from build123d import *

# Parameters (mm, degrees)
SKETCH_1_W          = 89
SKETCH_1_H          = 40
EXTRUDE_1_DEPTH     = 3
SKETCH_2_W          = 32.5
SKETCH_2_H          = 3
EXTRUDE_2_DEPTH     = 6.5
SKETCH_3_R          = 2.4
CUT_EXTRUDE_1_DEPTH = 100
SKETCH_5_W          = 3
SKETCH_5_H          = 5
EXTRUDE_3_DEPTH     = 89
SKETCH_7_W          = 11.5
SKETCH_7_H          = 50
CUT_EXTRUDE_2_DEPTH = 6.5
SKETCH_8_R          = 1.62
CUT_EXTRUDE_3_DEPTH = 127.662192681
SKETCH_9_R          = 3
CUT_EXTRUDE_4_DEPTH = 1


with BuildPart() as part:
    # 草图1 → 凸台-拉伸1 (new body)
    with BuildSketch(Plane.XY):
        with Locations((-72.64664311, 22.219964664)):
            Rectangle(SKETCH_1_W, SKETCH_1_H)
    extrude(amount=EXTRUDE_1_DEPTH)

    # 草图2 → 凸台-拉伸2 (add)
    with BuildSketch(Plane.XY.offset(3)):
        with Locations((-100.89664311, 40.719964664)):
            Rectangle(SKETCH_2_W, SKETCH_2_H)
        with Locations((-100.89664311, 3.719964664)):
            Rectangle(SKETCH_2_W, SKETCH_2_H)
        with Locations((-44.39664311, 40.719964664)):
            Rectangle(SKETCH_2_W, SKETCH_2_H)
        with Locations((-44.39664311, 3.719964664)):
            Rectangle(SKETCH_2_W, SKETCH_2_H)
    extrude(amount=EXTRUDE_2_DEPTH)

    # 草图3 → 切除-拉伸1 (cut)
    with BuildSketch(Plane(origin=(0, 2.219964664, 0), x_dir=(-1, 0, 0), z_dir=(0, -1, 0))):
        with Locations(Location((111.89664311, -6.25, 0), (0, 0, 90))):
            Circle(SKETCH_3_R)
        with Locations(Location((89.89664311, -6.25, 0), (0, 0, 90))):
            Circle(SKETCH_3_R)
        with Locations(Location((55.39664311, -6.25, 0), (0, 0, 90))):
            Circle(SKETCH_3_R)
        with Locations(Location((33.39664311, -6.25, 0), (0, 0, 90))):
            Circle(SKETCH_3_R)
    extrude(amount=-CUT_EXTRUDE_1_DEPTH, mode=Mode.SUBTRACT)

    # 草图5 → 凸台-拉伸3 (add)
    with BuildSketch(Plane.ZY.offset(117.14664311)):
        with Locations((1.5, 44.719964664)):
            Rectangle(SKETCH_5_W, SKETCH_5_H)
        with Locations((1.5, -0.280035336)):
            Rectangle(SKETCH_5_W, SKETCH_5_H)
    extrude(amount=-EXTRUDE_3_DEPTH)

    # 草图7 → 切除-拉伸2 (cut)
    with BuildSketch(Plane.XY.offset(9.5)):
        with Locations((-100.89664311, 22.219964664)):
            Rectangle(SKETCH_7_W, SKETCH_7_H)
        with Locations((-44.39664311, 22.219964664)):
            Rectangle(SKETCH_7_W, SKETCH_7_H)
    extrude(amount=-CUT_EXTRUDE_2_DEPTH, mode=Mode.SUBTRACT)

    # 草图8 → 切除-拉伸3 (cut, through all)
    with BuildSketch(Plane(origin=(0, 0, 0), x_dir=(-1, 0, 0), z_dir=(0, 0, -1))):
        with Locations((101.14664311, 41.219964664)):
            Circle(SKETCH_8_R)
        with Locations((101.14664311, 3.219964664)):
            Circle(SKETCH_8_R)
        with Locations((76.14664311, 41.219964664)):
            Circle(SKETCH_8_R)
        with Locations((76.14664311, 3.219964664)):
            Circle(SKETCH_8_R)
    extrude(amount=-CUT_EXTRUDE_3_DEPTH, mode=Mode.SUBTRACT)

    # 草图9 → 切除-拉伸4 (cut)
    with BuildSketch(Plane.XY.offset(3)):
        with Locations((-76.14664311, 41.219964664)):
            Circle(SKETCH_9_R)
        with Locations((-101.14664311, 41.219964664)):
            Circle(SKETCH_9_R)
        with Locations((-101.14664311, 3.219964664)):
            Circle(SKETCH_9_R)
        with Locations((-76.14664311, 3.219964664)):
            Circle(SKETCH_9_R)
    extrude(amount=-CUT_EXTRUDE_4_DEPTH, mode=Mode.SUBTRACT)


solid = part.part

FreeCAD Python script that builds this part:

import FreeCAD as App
import Part
import Sketcher
from FreeCAD import Vector
Q = App.Units.Quantity


def add_polygon(sketch, points):
    """Adds a closed chain of lines whose ends are joined by coincident constraints."""
    first, n = sketch.GeometryCount, len(points)
    for a, b in zip(points, points[1:] + points[:1]):
        sketch.addGeometry(Part.LineSegment(App.Vector(*a, 0), App.Vector(*b, 0)), False)
    for i in range(n):
        sketch.addConstraint(Sketcher.Constraint("Coincident", first + i, 2, first + (i + 1) % n, 1))

doc = App.newDocument("Part")
params = doc.addObject("Spreadsheet::Sheet", "Params")
for row, (alias, value) in enumerate([
    ("sketch1_width", "89 mm"),
    ("sketch1_height", "40 mm"),
    ("pad1_length", "3 mm"),
    ("sketch2_height", "3 mm"),
    ("sketch2_width", "32.5 mm"),
    ("pad2_length", "6.5 mm"),
    ("sketch3_diameter", "4.8 mm"),
    ("pocket1_length", "100 mm"),
    ("sketch4_width", "5 mm"),
    ("sketch4_height", "3 mm"),
    ("pad3_length", "89 mm"),
    ("sketch5_height", "50 mm"),
    ("sketch5_width", "11.5 mm"),
    ("pocket2_length", "6.5 mm"),
    ("sketch6_diameter", "3.24 mm"),
    ("sketch7_diameter", "6 mm"),
    ("pocket4_length", "1 mm"),
], start=1):
    params.set(f"A{row}", alias)
    params.set(f"B{row}", "=" + value)
    params.setAlias(f"B{row}", alias)

body = doc.addObject("PartDesign::Body", "Body")

sketch1 = doc.addObject("Sketcher::SketchObject", "Sketch")
body.addObject(sketch1)
sketch1.AttachmentSupport = (doc.XY_Plane, [""])
sketch1.MapMode = "FlatFace"
add_polygon(sketch1, [(-117, 42), (-117, 2), (-28, 2), (-28, 42)])
sketch1.addConstraint(Sketcher.Constraint("Vertical", 0))
sketch1.addConstraint(Sketcher.Constraint("Horizontal", 1))
sketch1.addConstraint(Sketcher.Constraint("Vertical", 2))
sketch1.addConstraint(Sketcher.Constraint("Horizontal", 3))
sketch1.addConstraint(Sketcher.Constraint("DistanceX", 1, 1, 1, 2, Q("89 mm")))
sketch1.addConstraint(Sketcher.Constraint("DistanceY", 0, 2, 0, 1, Q("40 mm")))
sketch1.addConstraint(Sketcher.Constraint("DistanceX", 0, 2, -1, 1, Q("117.146643 mm")))
sketch1.addConstraint(Sketcher.Constraint("DistanceY", -1, 1, 0, 2, Q("2.219965 mm")))
sketch1.setExpression("Constraints[8]", "Params.sketch1_width")
sketch1.setExpression("Constraints[9]", "Params.sketch1_height")
pad1 = doc.addObject("PartDesign::Pad", "Pad")
body.addObject(pad1)
pad1.Profile = sketch1
pad1.setExpression("Length", "Params.pad1_length")

sketch2 = doc.addObject("Sketcher::SketchObject", "Sketch001")
body.addObject(sketch2)
sketch2.AttachmentSupport = (doc.XY_Plane, [""])
sketch2.MapMode = "FlatFace"
sketch2.AttachmentOffset = App.Placement(Vector(0, 0, 3), App.Rotation())
add_polygon(sketch2, [(-117.1, 42.2), (-117.1, 39.2), (-84.6, 39.2), (-84.6, 42.2)])
add_polygon(sketch2, [(-117.1, 5.2), (-117.1, 2.2), (-84.6, 2.2), (-84.6, 5.2)])
add_polygon(sketch2, [(-60.6, 42.2), (-60.6, 39.2), (-28.1, 39.2), (-28.1, 42.2)])
add_polygon(sketch2, [(-60.6, 5.2), (-60.6, 2.2), (-28.1, 2.2), (-28.1, 5.2)])
sketch2.addConstraint(Sketcher.Constraint("Vertical", 0))
sketch2.addConstraint(Sketcher.Constraint("Horizontal", 1))
sketch2.addConstraint(Sketcher.Constraint("Vertical", 2))
sketch2.addConstraint(Sketcher.Constraint("Horizontal", 3))
sketch2.addConstraint(Sketcher.Constraint("Vertical", 4))
sketch2.addConstraint(Sketcher.Constraint("Horizontal", 5))
sketch2.addConstraint(Sketcher.Constraint("Vertical", 6))
sketch2.addConstraint(Sketcher.Constraint("Horizontal", 7))
sketch2.addConstraint(Sketcher.Constraint("Vertical", 8))
sketch2.addConstraint(Sketcher.Constraint("Horizontal", 9))
sketch2.addConstraint(Sketcher.Constraint("Vertical", 10))
sketch2.addConstraint(Sketcher.Constraint("Horizontal", 11))
sketch2.addConstraint(Sketcher.Constraint("Vertical", 12))
sketch2.addConstraint(Sketcher.Constraint("Horizontal", 13))
sketch2.addConstraint(Sketcher.Constraint("Vertical", 14))
sketch2.addConstraint(Sketcher.Constraint("Horizontal", 15))
sketch2.addConstraint(Sketcher.Constraint("Horizontal", 1, 2, 8, 2))
sketch2.addConstraint(Sketcher.Constraint("Horizontal", 3, 2, 10, 2))
sketch2.addConstraint(Sketcher.Constraint("Horizontal", 5, 2, 12, 2))
sketch2.addConstraint(Sketcher.Constraint("Horizontal", 7, 2, 14, 2))
sketch2.addConstraint(Sketcher.Constraint("Vertical", 3, 2, 4, 2))
sketch2.addConstraint(Sketcher.Constraint("Vertical", 2, 2, 5, 2))
sketch2.addConstraint(Sketcher.Constraint("Vertical", 11, 2, 12, 2))
sketch2.addConstraint(Sketcher.Constraint("Vertical", 10, 2, 13, 2))
sketch2.addConstraint(Sketcher.Constraint("Equal", 7, 9))
sketch2.addConstraint(Sketcher.Constraint("Equal", 2, 4))
sketch2.addConstraint(Sketcher.Constraint("DistanceY", 0, 2, 0, 1, Q("3 mm")))
sketch2.addConstraint(Sketcher.Constraint("DistanceX", 1, 1, 1, 2, Q("32.5 mm")))
sketch2.addConstraint(Sketcher.Constraint("DistanceY", 4, 2, 0, 2, Q("37 mm")))
sketch2.addConstraint(Sketcher.Constraint("DistanceX", 1, 2, 8, 2, Q("24 mm")))
sketch2.addConstraint(Sketcher.Constraint("DistanceX", 0, 2, -1, 1, Q("117.146643 mm")))
sketch2.addConstraint(Sketcher.Constraint("DistanceY", -1, 1, 0, 2, Q("39.219965 mm")))
sketch2.setExpression("Constraints[42]", "Params.sketch2_height")
sketch2.setExpression("Constraints[43]", "Params.sketch2_width")
pad2 = doc.addObject("PartDesign::Pad", "Pad001")
body.addObject(pad2)
pad2.Profile = sketch2
pad2.setExpression("Length", "Params.pad2_length")

sketch3 = doc.addObject("Sketcher::SketchObject", "Sketch002")
body.addObject(sketch3)
sketch3.AttachmentSupport = (doc.XZ_Plane, [""])
sketch3.MapMode = "FlatFace"
sketch3.AttachmentOffset = App.Placement(Vector(0, 0, -2.219965), App.Rotation())
sketch3.addGeometry(Part.Circle(Vector(-111.9, 6.2, 0), Vector(0, 0, 1), 2.4), False)
sketch3.addGeometry(Part.Circle(Vector(-89.9, 6.2, 0), Vector(0, 0, 1), 2.4), False)
sketch3.addGeometry(Part.Circle(Vector(-55.4, 6.2, 0), Vector(0, 0, 1), 2.4), False)
sketch3.addGeometry(Part.Circle(Vector(-33.4, 6.2, 0), Vector(0, 0, 1), 2.4), False)
sketch3.addConstraint(Sketcher.Constraint("Equal", 0, 1))
sketch3.addConstraint(Sketcher.Constraint("Equal", 1, 2))
sketch3.addConstraint(Sketcher.Constraint("Equal", 2, 3))
sketch3.addConstraint(Sketcher.Constraint("Horizontal", 0, 3, 1, 3))
sketch3.addConstraint(Sketcher.Constraint("Horizontal", 1, 3, 2, 3))
sketch3.addConstraint(Sketcher.Constraint("Horizontal", 2, 3, 3, 3))
sketch3.addConstraint(Sketcher.Constraint("Diameter", 0, Q("4.8 mm")))
sketch3.addConstraint(Sketcher.Constraint("DistanceX", 0, 3, 1, 3, Q("22 mm")))
sketch3.addConstraint(Sketcher.Constraint("DistanceX", 2, 3, 3, 3, Q("22 mm")))
sketch3.addConstraint(Sketcher.Constraint("DistanceX", 1, 3, 2, 3, Q("34.5 mm")))
sketch3.addConstraint(Sketcher.Constraint("DistanceY", -1, 1, 0, 3, Q("6.25 mm")))
sketch3.addConstraint(Sketcher.Constraint("DistanceX", 0, 3, -1, 1, Q("111.896643 mm")))
sketch3.setExpression("Constraints[6]", "Params.sketch3_diameter")
pocket1 = doc.addObject("PartDesign::Pocket", "Pocket")
body.addObject(pocket1)
pocket1.Profile = sketch3
pocket1.setExpression("Length", "Params.pocket1_length")

sketch4 = doc.addObject("Sketcher::SketchObject", "Sketch003")
body.addObject(sketch4)
sketch4.AttachmentSupport = (doc.YZ_Plane, [""])
sketch4.MapMode = "FlatFace"
sketch4.AttachmentOffset = App.Placement(Vector(0, 0, -117.146643), App.Rotation())
add_polygon(sketch4, [(47.2, 0), (42.2, 0), (42.2, 3), (47.2, 3)])
add_polygon(sketch4, [(2.2, 0), (-2.8, 0), (-2.8, 3), (2.2, 3)])
sketch4.addConstraint(Sketcher.Constraint("Horizontal", 0))
sketch4.addConstraint(Sketcher.Constraint("Vertical", 1))
sketch4.addConstraint(Sketcher.Constraint("Horizontal", 2))
sketch4.addConstraint(Sketcher.Constraint("Vertical", 3))
sketch4.addConstraint(Sketcher.Constraint("Horizontal", 4))
sketch4.addConstraint(Sketcher.Constraint("Vertical", 5))
sketch4.addConstraint(Sketcher.Constraint("Horizontal", 6))
sketch4.addConstraint(Sketcher.Constraint("Vertical", 7))
sketch4.addConstraint(Sketcher.Constraint("PointOnObject", 0, 2, -1))
sketch4.addConstraint(Sketcher.Constraint("PointOnObject", 4, 2, -1))
sketch4.addConstraint(Sketcher.Constraint("Horizontal", 2, 2, 5, 2))
sketch4.addConstraint(Sketcher.Constraint("Equal", 2, 4))
sketch4.addConstraint(Sketcher.Constraint("DistanceX", 0, 2, 0, 1, Q("5 mm")))
sketch4.addConstraint(Sketcher.Constraint("DistanceY", 1, 1, 1, 2, Q("3 mm")))
sketch4.addConstraint(Sketcher.Constraint("DistanceX", 4, 2, 0, 2, Q("45 mm")))
sketch4.addConstraint(Sketcher.Constraint("DistanceX", -1, 1, 0, 2, Q("42.219965 mm")))
sketch4.setExpression("Constraints[20]", "Params.sketch4_width")
sketch4.setExpression("Constraints[21]", "Params.sketch4_height")
pad3 = doc.addObject("PartDesign::Pad", "Pad002")
body.addObject(pad3)
pad3.Profile = sketch4
pad3.setExpression("Length", "Params.pad3_length")

sketch5 = doc.addObject("Sketcher::SketchObject", "Sketch004")
body.addObject(sketch5)
sketch5.AttachmentSupport = (doc.XY_Plane, [""])
sketch5.MapMode = "FlatFace"
sketch5.AttachmentOffset = App.Placement(Vector(0, 0, 9.5), App.Rotation())
add_polygon(sketch5, [(-107, 47), (-107, -3), (-95, -3), (-95, 47)])
add_polygon(sketch5, [(-50, 47), (-50, -3), (-39, -3), (-39, 47)])
sketch5.addConstraint(Sketcher.Constraint("Vertical", 0))
sketch5.addConstraint(Sketcher.Constraint("Horizontal", 1))
sketch5.addConstraint(Sketcher.Constraint("Vertical", 2))
sketch5.addConstraint(Sketcher.Constraint("Horizontal", 3))
sketch5.addConstraint(Sketcher.Constraint("Vertical", 4))
sketch5.addConstraint(Sketcher.Constraint("Horizontal", 5))
sketch5.addConstraint(Sketcher.Constraint("Vertical", 6))
sketch5.addConstraint(Sketcher.Constraint("Horizontal", 7))
sketch5.addConstraint(Sketcher.Constraint("Horizontal", 1, 2, 4, 2))
sketch5.addConstraint(Sketcher.Constraint("Horizontal", 3, 2, 6, 2))
sketch5.addConstraint(Sketcher.Constraint("Equal", 3, 5))
sketch5.addConstraint(Sketcher.Constraint("DistanceY", 0, 2, 0, 1, Q("50 mm")))
sketch5.addConstraint(Sketcher.Constraint("DistanceX", 1, 1, 1, 2, Q("11.5 mm")))
sketch5.addConstraint(Sketcher.Constraint("DistanceX", 1, 2, 4, 2, Q("45 mm")))
sketch5.addConstraint(Sketcher.Constraint("DistanceX", 0, 2, -1, 1, Q("106.646643 mm")))
sketch5.addConstraint(Sketcher.Constraint("DistanceY", 0, 2, -1, 1, Q("2.780035 mm")))
sketch5.setExpression("Constraints[19]", "Params.sketch5_height")
sketch5.setExpression("Constraints[20]", "Params.sketch5_width")
pocket2 = doc.addObject("PartDesign::Pocket", "Pocket001")
body.addObject(pocket2)
pocket2.Profile = sketch5
pocket2.setExpression("Length", "Params.pocket2_length")

sketch6 = doc.addObject("Sketcher::SketchObject", "Sketch005")
body.addObject(sketch6)
sketch6.AttachmentSupport = (doc.XY_Plane, [""])
sketch6.MapMode = "FlatFace"
sketch6.addGeometry(Part.Circle(Vector(-101.1, 41.2, 0), Vector(0, 0, 1), 1.6), False)
sketch6.addGeometry(Part.Circle(Vector(-101.1, 3.2, 0), Vector(0, 0, 1), 1.6), False)
sketch6.addGeometry(Part.Circle(Vector(-76.1, 41.2, 0), Vector(0, 0, 1), 1.6), False)
sketch6.addGeometry(Part.Circle(Vector(-76.1, 3.2, 0), Vector(0, 0, 1), 1.6), False)
sketch6.addConstraint(Sketcher.Constraint("Equal", 0, 1))
sketch6.addConstraint(Sketcher.Constraint("Equal", 1, 2))
sketch6.addConstraint(Sketcher.Constraint("Equal", 2, 3))
sketch6.addConstraint(Sketcher.Constraint("Horizontal", 0, 3, 2, 3))
sketch6.addConstraint(Sketcher.Constraint("Horizontal", 1, 3, 3, 3))
sketch6.addConstraint(Sketcher.Constraint("Vertical", 0, 3, 1, 3))
sketch6.addConstraint(Sketcher.Constraint("Vertical", 2, 3, 3, 3))
sketch6.addConstraint(Sketcher.Constraint("Diameter", 0, Q("3.24 mm")))
sketch6.addConstraint(Sketcher.Constraint("DistanceY", 1, 3, 0, 3, Q("38 mm")))
sketch6.addConstraint(Sketcher.Constraint("DistanceX", 0, 3, 2, 3, Q("25 mm")))
sketch6.addConstraint(Sketcher.Constraint("DistanceX", 0, 3, -1, 1, Q("101.146643 mm")))
sketch6.addConstraint(Sketcher.Constraint("DistanceY", -1, 1, 0, 3, Q("41.219965 mm")))
sketch6.setExpression("Constraints[7]", "Params.sketch6_diameter")
pocket3 = doc.addObject("PartDesign::Pocket", "Pocket002")
body.addObject(pocket3)
pocket3.Profile = sketch6
pocket3.Type = "ThroughAll"
pocket3.Reversed = True

sketch7 = doc.addObject("Sketcher::SketchObject", "Sketch006")
body.addObject(sketch7)
sketch7.AttachmentSupport = (doc.XY_Plane, [""])
sketch7.MapMode = "FlatFace"
sketch7.AttachmentOffset = App.Placement(Vector(0, 0, 3), App.Rotation())
sketch7.addGeometry(Part.Circle(Vector(-76.1, 41.2, 0), Vector(0, 0, 1), 3), False)
sketch7.addGeometry(Part.Circle(Vector(-101.1, 41.2, 0), Vector(0, 0, 1), 3), False)
sketch7.addGeometry(Part.Circle(Vector(-101.1, 3.2, 0), Vector(0, 0, 1), 3), False)
sketch7.addGeometry(Part.Circle(Vector(-76.1, 3.2, 0), Vector(0, 0, 1), 3), False)
sketch7.addConstraint(Sketcher.Constraint("Equal", 0, 1))
sketch7.addConstraint(Sketcher.Constraint("Equal", 1, 2))
sketch7.addConstraint(Sketcher.Constraint("Equal", 2, 3))
sketch7.addConstraint(Sketcher.Constraint("Horizontal", 0, 3, 1, 3))
sketch7.addConstraint(Sketcher.Constraint("Horizontal", 2, 3, 3, 3))
sketch7.addConstraint(Sketcher.Constraint("Vertical", 1, 3, 2, 3))
sketch7.addConstraint(Sketcher.Constraint("Vertical", 0, 3, 3, 3))
sketch7.addConstraint(Sketcher.Constraint("Diameter", 0, Q("6 mm")))
sketch7.addConstraint(Sketcher.Constraint("DistanceX", 1, 3, 0, 3, Q("25 mm")))
sketch7.addConstraint(Sketcher.Constraint("DistanceY", 2, 3, 1, 3, Q("38 mm")))
sketch7.addConstraint(Sketcher.Constraint("DistanceX", 0, 3, -1, 1, Q("76.146643 mm")))
sketch7.addConstraint(Sketcher.Constraint("DistanceY", -1, 1, 0, 3, Q("41.219965 mm")))
sketch7.setExpression("Constraints[7]", "Params.sketch7_diameter")
pocket4 = doc.addObject("PartDesign::Pocket", "Pocket003")
body.addObject(pocket4)
pocket4.Profile = sketch7
pocket4.setExpression("Length", "Params.pocket4_length")

doc.recompute()
